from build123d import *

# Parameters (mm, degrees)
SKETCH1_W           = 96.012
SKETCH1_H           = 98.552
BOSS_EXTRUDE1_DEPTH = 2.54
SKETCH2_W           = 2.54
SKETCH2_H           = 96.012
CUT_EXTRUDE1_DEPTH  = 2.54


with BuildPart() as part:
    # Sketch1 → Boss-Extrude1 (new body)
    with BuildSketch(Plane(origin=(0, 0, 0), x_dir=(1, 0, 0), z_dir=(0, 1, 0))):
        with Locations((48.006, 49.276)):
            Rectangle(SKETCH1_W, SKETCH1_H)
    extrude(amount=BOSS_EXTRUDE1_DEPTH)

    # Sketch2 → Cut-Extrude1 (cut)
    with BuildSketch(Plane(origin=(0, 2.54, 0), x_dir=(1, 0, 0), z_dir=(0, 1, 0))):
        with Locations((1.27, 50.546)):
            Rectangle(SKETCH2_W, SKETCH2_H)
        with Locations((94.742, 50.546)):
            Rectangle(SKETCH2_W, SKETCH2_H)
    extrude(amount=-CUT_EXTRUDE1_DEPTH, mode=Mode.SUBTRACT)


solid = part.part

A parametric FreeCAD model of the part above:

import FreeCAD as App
import Part
import Sketcher

V = App.Vector
Q = App.Units.Quantity

doc = App.newDocument("Part")
body = doc.addObject("PartDesign::Body", "Body")

# Sketch on XZ plane
sketch1 = body.newObject("Sketcher::SketchObject", "Sketch")
sketch1.AttachmentSupport = (doc.getObject("XZ_Plane"), [""])
sketch1.MapMode = "FlatFace"
sketch1.addGeometry([
    Part.LineSegment(V(0, -99, 0), V(0, 0, 0)),
    Part.LineSegment(V(0, 0, 0), V(96, 0, 0)),
    Part.LineSegment(V(96, 0, 0), V(96, -99, 0)),
    Part.LineSegment(V(96, -99, 0), V(0, -99, 0)),
], False)
sketch1.addConstraint([
    Sketcher.Constraint("Coincident", 0, 2, 1, 1),
    Sketcher.Constraint("Coincident", 1, 2, 2, 1),
    Sketcher.Constraint("Coincident", 2, 2, 3, 1),
    Sketcher.Constraint("Coincident", 3, 2, 0, 1),
    Sketcher.Constraint("Vertical", 0),
    Sketcher.Constraint("Horizontal", 1),
    Sketcher.Constraint("Vertical", 2),
    Sketcher.Constraint("Horizontal", 3),
    Sketcher.Constraint("Coincident", 0, 2, -1, 1),
    Sketcher.Constraint("DistanceX", 1, 1, 1, 2, Q("3.78 in")),
    Sketcher.Constraint("DistanceY", 0, 1, 0, 2, Q("3.88 in")),
])
pad1 = body.newObject("PartDesign::Pad", "Pad")
pad1.Profile = sketch1
pad1.Length = Q("0.1 in")
pad1.Reversed = True

# Sketch on XZ plane
sketch2 = body.newObject("Sketcher::SketchObject", "Sketch001")
sketch2.AttachmentSupport = (doc.getObject("XZ_Plane"), [""])
sketch2.MapMode = "FlatFace"
sketch2.AttachmentOffset = App.Placement(V(0, 0, -0.1 * 25.4), App.Rotation())
sketch2.addGeometry([
    Part.LineSegment(V(0, -98.6, 0), V(0, -2.5, 0)),  # 0
    Part.LineSegment(V(0, -2.5, 0), V(2.5, -2.5, 0)),  # 1
    Part.LineSegment(V(2.5, -2.5, 0), V(2.5, -98.6, 0)),  # 2
    Part.LineSegment(V(2.5, -98.6, 0), V(0, -98.6, 0)),  # 3
    Part.LineSegment(V(93.5, -98.6, 0), V(93.5, -2.5, 0)),  # 4
    Part.LineSegment(V(93.5, -2.5, 0), V(96, -2.5, 0)),  # 5
    Part.LineSegment(V(96, -2.5, 0), V(96, -98.6, 0)),  # 6
    Part.LineSegment(V(96, -98.6, 0), V(93.5, -98.6, 0)),  # 7
], False)
sketch2.addConstraint([
    Sketcher.Constraint("Coincident", 0, 2, 1, 1),
    Sketcher.Constraint("Coincident", 1, 2, 2, 1),
    Sketcher.Constraint("Coincident", 2, 2, 3, 1),
    Sketcher.Constraint("Coincident", 3, 2, 0, 1),
    Sketcher.Constraint("Coincident", 4, 2, 5, 1),
    Sketcher.Constraint("Coincident", 5, 2, 6, 1),
    Sketcher.Constraint("Coincident", 6, 2, 7, 1),
    Sketcher.Constraint("Coincident", 7, 2, 4, 1),
    Sketcher.Constraint("Vertical", 0),
    Sketcher.Constraint("Horizontal", 1),
    Sketcher.Constraint("Vertical", 2),
    Sketcher.Constraint("Horizontal", 3),
    Sketcher.Constraint("Vertical", 4),
    Sketcher.Constraint("Horizontal", 5),
    Sketcher.Constraint("Vertical", 6),
    Sketcher.Constraint("Horizontal", 7),
    Sketcher.Constraint("PointOnObject", 0, 2, -2),
    Sketcher.Constraint("Horizontal", 1, 2, 4, 2),
    Sketcher.Constraint("Horizontal", 3, 2, 6, 2),
    Sketcher.Constraint("Equal", 3, 5),
    Sketcher.Constraint("DistanceX", 1, 1, 1, 2, Q("0.1 in")),
    Sketcher.Constraint("DistanceY", 0, 1, 0, 2, Q("3.78 in")),
    Sketcher.Constraint("DistanceY", 0, 2, -1, 1, Q("0.1 in")),
    Sketcher.Constraint("DistanceX", -1, 1, 4, 2, Q("3.68 in")),
])
pocket1 = body.newObject("PartDesign::Pocket", "Pocket")
pocket1.Profile = sketch2
pocket1.Length = Q("0.1 in")
pocket1.Reversed = True

doc.recompute()
